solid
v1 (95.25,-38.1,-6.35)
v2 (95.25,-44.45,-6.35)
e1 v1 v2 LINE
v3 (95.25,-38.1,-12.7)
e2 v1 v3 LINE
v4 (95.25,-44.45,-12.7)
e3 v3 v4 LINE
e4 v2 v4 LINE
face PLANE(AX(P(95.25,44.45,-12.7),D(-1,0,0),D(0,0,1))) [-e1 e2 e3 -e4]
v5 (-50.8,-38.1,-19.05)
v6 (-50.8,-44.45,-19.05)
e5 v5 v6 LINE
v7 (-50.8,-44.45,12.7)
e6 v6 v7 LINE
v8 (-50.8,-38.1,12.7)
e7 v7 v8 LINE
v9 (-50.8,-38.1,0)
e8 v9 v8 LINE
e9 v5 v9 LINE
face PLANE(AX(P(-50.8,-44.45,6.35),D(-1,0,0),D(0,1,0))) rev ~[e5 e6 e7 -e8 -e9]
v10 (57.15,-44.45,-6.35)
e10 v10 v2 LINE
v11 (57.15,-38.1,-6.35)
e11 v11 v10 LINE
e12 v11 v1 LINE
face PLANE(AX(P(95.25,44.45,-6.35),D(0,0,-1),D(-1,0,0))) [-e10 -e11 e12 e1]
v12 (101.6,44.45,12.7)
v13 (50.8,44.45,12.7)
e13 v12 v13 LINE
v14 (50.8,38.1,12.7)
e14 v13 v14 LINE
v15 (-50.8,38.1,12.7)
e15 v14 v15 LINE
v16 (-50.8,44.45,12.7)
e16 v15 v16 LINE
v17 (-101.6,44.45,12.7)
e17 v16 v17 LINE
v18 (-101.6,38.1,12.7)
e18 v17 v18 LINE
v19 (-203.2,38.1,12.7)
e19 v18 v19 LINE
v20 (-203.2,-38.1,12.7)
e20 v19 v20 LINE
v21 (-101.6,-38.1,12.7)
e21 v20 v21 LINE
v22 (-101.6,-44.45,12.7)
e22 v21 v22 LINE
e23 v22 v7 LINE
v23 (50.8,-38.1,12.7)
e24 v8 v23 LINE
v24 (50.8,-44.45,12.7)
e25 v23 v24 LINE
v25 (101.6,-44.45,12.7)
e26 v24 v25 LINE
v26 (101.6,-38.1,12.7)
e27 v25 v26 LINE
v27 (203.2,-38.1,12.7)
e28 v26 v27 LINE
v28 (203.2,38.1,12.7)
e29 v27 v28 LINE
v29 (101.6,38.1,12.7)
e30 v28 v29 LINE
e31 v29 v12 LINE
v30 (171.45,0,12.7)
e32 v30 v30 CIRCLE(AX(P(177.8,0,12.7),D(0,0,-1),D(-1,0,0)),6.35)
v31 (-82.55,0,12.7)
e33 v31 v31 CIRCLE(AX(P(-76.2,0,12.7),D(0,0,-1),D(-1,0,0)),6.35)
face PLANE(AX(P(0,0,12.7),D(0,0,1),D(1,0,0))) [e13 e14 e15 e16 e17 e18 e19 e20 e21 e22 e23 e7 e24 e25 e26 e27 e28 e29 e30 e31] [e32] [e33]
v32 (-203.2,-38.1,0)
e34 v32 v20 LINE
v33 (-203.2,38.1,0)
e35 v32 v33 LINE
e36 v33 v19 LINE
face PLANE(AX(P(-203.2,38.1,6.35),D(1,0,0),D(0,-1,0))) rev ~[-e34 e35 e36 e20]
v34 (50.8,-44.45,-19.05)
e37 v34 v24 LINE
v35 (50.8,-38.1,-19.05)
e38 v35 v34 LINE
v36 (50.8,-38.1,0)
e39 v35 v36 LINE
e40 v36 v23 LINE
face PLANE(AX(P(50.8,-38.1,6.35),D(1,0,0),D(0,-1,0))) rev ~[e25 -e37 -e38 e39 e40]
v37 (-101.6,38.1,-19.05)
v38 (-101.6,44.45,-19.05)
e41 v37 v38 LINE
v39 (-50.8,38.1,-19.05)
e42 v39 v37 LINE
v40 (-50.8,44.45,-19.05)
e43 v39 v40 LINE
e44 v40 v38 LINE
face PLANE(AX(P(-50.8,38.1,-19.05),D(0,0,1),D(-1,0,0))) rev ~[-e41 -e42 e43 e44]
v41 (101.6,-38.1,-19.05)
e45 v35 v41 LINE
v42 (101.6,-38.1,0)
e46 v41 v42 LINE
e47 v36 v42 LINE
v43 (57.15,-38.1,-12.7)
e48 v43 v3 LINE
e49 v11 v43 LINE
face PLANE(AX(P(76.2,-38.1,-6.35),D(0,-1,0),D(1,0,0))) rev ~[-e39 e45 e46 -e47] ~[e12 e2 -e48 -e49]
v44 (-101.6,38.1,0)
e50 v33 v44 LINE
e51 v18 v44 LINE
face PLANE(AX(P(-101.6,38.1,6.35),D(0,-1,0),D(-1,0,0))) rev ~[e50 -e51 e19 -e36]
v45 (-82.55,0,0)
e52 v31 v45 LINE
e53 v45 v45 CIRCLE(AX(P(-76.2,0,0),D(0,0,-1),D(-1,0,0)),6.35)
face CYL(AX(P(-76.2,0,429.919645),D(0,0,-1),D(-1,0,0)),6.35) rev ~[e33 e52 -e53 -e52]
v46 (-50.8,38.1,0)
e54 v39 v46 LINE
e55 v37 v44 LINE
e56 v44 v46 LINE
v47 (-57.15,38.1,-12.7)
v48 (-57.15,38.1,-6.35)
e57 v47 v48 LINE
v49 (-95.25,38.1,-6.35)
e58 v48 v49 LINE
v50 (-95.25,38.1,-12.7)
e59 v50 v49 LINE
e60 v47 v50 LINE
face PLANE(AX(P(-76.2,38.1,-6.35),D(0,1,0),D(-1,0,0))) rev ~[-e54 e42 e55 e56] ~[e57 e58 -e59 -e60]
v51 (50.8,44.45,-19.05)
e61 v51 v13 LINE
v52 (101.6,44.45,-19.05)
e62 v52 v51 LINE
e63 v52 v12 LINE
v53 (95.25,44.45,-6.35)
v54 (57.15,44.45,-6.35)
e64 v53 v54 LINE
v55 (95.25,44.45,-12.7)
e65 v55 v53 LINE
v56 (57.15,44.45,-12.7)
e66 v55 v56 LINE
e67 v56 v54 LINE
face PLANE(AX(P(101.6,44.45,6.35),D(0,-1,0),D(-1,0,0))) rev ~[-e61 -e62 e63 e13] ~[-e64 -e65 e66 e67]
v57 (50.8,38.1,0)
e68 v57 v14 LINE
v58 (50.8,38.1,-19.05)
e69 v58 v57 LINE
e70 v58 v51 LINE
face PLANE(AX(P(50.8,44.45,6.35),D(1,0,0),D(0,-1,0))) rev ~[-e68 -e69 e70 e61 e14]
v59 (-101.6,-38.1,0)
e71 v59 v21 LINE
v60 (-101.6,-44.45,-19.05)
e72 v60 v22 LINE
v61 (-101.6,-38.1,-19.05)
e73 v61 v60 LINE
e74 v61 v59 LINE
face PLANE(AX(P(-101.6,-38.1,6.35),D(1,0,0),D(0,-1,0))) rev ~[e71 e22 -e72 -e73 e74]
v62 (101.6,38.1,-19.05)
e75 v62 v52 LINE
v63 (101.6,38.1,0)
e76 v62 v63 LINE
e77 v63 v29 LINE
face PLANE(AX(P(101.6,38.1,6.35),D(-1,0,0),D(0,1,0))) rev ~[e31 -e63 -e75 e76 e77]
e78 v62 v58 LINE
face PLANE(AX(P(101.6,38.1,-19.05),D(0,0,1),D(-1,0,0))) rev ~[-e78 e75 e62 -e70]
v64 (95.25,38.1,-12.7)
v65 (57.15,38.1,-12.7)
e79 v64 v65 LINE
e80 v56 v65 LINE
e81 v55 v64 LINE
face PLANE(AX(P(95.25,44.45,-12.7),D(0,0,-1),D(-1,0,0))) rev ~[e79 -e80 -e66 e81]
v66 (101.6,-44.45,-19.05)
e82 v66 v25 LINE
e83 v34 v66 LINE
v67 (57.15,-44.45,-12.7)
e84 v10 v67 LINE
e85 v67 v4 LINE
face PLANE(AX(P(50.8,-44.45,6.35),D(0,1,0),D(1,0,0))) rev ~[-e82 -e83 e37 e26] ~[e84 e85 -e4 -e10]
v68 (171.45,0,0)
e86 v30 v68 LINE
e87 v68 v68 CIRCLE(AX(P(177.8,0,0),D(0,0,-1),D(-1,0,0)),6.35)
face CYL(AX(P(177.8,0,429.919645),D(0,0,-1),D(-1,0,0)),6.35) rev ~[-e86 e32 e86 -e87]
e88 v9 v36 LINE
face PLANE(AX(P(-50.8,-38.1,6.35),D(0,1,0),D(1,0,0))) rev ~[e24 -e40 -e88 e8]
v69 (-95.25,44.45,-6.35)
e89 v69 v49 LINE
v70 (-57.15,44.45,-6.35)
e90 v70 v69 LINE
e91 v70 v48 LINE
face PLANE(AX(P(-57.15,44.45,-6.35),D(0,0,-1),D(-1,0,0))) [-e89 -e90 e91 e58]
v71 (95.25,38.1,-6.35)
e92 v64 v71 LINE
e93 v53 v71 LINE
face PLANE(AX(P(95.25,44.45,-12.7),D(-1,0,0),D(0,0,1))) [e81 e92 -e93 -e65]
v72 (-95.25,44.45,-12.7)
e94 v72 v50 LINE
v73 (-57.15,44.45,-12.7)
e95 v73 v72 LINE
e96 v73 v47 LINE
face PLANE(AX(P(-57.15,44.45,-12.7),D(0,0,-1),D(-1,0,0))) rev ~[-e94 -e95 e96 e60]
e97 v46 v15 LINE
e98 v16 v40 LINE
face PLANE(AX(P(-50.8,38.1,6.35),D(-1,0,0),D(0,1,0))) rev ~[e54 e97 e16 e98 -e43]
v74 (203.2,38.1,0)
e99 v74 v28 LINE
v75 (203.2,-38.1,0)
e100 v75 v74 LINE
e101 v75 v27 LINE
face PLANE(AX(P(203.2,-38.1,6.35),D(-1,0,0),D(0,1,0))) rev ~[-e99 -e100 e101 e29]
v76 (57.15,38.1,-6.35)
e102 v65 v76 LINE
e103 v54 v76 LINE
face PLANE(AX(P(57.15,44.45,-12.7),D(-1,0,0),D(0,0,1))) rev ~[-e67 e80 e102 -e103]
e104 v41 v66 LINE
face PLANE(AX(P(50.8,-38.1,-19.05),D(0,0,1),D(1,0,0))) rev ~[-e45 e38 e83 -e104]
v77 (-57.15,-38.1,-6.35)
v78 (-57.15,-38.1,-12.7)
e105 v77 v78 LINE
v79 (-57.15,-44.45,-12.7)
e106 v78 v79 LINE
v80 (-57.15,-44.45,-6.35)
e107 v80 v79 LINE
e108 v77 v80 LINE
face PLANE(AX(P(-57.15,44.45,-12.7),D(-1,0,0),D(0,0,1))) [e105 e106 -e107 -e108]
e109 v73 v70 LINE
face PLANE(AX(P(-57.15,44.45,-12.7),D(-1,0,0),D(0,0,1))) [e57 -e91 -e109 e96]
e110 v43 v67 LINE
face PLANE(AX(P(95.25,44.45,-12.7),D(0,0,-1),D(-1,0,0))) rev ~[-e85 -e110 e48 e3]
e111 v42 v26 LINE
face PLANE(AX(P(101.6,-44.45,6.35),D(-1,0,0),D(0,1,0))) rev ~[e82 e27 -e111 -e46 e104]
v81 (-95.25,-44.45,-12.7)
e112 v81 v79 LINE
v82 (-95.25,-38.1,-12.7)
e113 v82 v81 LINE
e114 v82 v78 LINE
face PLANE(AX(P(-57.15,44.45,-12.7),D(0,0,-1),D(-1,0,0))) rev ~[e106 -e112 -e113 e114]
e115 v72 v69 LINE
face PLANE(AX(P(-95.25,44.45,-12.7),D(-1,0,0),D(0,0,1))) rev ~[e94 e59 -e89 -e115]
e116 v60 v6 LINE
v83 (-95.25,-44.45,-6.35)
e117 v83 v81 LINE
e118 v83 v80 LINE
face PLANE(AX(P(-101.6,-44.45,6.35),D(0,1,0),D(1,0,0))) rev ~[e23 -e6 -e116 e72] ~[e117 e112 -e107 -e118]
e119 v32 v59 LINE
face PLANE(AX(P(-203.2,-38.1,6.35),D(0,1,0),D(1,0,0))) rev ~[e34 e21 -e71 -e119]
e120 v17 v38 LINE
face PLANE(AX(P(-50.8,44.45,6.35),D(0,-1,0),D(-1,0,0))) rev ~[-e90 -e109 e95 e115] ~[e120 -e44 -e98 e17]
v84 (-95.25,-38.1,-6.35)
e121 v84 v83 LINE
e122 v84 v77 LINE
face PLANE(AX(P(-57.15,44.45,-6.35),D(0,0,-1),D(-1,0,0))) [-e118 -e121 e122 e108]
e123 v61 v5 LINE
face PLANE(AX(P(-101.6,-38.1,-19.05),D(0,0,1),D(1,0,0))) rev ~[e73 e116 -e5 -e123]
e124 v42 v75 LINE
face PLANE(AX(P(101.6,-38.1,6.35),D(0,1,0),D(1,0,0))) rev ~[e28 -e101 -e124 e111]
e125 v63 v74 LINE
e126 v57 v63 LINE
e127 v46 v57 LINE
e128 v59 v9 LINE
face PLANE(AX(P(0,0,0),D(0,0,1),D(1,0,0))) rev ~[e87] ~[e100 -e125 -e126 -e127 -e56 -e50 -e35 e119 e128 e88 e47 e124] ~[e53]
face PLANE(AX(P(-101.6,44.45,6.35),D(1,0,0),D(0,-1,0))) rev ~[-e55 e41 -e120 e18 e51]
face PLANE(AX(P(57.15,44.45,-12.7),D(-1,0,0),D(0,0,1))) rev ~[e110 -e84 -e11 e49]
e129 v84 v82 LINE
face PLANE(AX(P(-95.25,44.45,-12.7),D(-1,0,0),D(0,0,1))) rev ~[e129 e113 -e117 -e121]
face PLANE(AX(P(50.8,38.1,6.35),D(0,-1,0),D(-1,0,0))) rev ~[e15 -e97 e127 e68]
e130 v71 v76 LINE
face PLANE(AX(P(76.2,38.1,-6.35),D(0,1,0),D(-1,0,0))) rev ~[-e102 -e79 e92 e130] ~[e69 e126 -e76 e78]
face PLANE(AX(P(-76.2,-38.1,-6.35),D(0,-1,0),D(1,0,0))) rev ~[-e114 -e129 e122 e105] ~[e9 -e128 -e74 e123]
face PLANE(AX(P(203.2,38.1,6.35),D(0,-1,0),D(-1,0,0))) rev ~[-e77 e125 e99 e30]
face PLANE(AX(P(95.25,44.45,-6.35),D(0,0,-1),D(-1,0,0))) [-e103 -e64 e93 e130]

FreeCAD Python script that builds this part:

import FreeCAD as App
import Part
import Sketcher
from FreeCAD import Vector
Q = App.Units.Quantity

doc = App.newDocument("Part")
body = doc.addObject("PartDesign::Body", "Body")

sketch1 = body.newObject("Sketcher::SketchObject", "Sketch")
sketch1.AttachmentSupport = (doc.getObject("XY_Plane"), [""])
sketch1.MapMode = "FlatFace"
sketch1.addGeometry([
    Part.LineSegment(Vector(-203, 38, 0), Vector(-203, -38, 0)),
    Part.LineSegment(Vector(-203, -38, 0), Vector(203, -38, 0)),
    Part.LineSegment(Vector(203, -38, 0), Vector(203, 38, 0)),
    Part.LineSegment(Vector(203, 38, 0), Vector(-203, 38, 0)),
], False)
sketch1.addConstraint([
    Sketcher.Constraint("Coincident", 0, 2, 1, 1),
    Sketcher.Constraint("Coincident", 1, 2, 2, 1),
    Sketcher.Constraint("Coincident", 2, 2, 3, 1),
    Sketcher.Constraint("Coincident", 3, 2, 0, 1),
    Sketcher.Constraint("Vertical", 0),
    Sketcher.Constraint("Horizontal", 1),
    Sketcher.Constraint("Vertical", 2),
    Sketcher.Constraint("Horizontal", 3),
    Sketcher.Constraint("Symmetric", 0, 2, 2, 2, -1, 1),
    Sketcher.Constraint("DistanceX", 1, 1, 1, 2, Q("16 in")),
    Sketcher.Constraint("DistanceY", 0, 2, 0, 1, Q("3 in")),
])
pad1 = body.newObject("PartDesign::Pad", "Pad")
pad1.Profile = sketch1
pad1.Length = Q("0.25 in")

sketch2 = body.newObject("Sketcher::SketchObject", "Sketch001")
sketch2.AttachmentSupport = (doc.getObject("XZ_Plane"), [""])
sketch2.MapMode = "FlatFace"
sketch2.AttachmentOffset = App.Placement(Vector(0, 0, 1.5 * 25.4), App.Rotation())
sketch2.addGeometry([
    Part.LineSegment(Vector(51, 6, 0), Vector(51, -19, 0)),
    Part.LineSegment(Vector(51, -19, 0), Vector(102, -19, 0)),
    Part.LineSegment(Vector(102, -19, 0), Vector(102, 6, 0)),
    Part.LineSegment(Vector(102, 6, 0), Vector(51, 6, 0)),
    Part.LineSegment(Vector(-102, 6, 0), Vector(-102, -19, 0)),
    Part.LineSegment(Vector(-102, -19, 0), Vector(-51, -19, 0)),
    Part.LineSegment(Vector(-51, -19, 0), Vector(-51, 6, 0)),
    Part.LineSegment(Vector(-51, 6, 0), Vector(-102, 6, 0)),
], False)
sketch2.addConstraint([
    Sketcher.Constraint("Coincident", 0, 2, 1, 1),
    Sketcher.Constraint("Coincident", 1, 2, 2, 1),
    Sketcher.Constraint("Coincident", 2, 2, 3, 1),
    Sketcher.Constraint("Coincident", 3, 2, 0, 1),
    Sketcher.Constraint("Coincident", 4, 2, 5, 1),
    Sketcher.Constraint("Coincident", 5, 2, 6, 1),
    Sketcher.Constraint("Coincident", 6, 2, 7, 1),
    Sketcher.Constraint("Coincident", 7, 2, 4, 1),
    Sketcher.Constraint("Vertical", 0),
    Sketcher.Constraint("Horizontal", 1),
    Sketcher.Constraint("Vertical", 2),
    Sketcher.Constraint("Horizontal", 3),
    Sketcher.Constraint("Vertical", 4),
    Sketcher.Constraint("Horizontal", 5),
    Sketcher.Constraint("Vertical", 6),
    Sketcher.Constraint("Horizontal", 7),
    Sketcher.Constraint("Symmetric", 1, 2, 4, 2, -2),
    Sketcher.Constraint("Symmetric", 3, 2, 6, 2, -2),
    Sketcher.Constraint("DistanceX", 1, 1, 1, 2, Q("2 in")),
    Sketcher.Constraint("DistanceY", 0, 2, 0, 1, Q("1 in")),
    Sketcher.Constraint("DistanceX", -1, 1, 0, 2, Q("2 in")),
    Sketcher.Constraint("DistanceY", 0, 2, -1, 1, Q("0.75 in")),
])
pad2 = body.newObject("PartDesign::Pad", "Pad001")
pad2.Profile = sketch2
pad2.Length = Q("0.25 in")

sketch3 = body.newObject("Sketcher::SketchObject", "Sketch002")
sketch3.AttachmentSupport = (doc.getObject("XZ_Plane"), [""])
sketch3.MapMode = "FlatFace"
sketch3.AttachmentOffset = App.Placement(Vector(0, 0, -1.5 * 25.4), App.Rotation())
sketch3.addGeometry([
    Part.LineSegment(Vector(102, 6, 0), Vector(102, -19, 0)),
    Part.LineSegment(Vector(102, -19, 0), Vector(51, -19, 0)),
    Part.LineSegment(Vector(51, -19, 0), Vector(51, 6, 0)),
    Part.LineSegment(Vector(51, 6, 0), Vector(102, 6, 0)),
    Part.LineSegment(Vector(-51, 6, 0), Vector(-51, -19, 0)),
    Part.LineSegment(Vector(-51, -19, 0), Vector(-102, -19, 0)),
    Part.LineSegment(Vector(-102, -19, 0), Vector(-102, 6, 0)),
    Part.LineSegment(Vector(-102, 6, 0), Vector(-51, 6, 0)),
], False)
sketch3.addConstraint([
    Sketcher.Constraint("Coincident", 0, 2, 1, 1),
    Sketcher.Constraint("Coincident", 1, 2, 2, 1),
    Sketcher.Constraint("Coincident", 2, 2, 3, 1),
    Sketcher.Constraint("Coincident", 3, 2, 0, 1),
    Sketcher.Constraint("Coincident", 4, 2, 5, 1),
    Sketcher.Constraint("Coincident", 5, 2, 6, 1),
    Sketcher.Constraint("Coincident", 6, 2, 7, 1),
    Sketcher.Constraint("Coincident", 7, 2, 4, 1),
    Sketcher.Constraint("Vertical", 0),
    Sketcher.Constraint("Horizontal", 1),
    Sketcher.Constraint("Vertical", 2),
    Sketcher.Constraint("Horizontal", 3),
    Sketcher.Constraint("Vertical", 4),
    Sketcher.Constraint("Horizontal", 5),
    Sketcher.Constraint("Vertical", 6),
    Sketcher.Constraint("Horizontal", 7),
    Sketcher.Constraint("Symmetric", 1, 2, 4, 2, -2),
    Sketcher.Constraint("Symmetric", 3, 2, 6, 2, -2),
    Sketcher.Constraint("DistanceX", 1, 2, 1, 1, Q("2 in")),
    Sketcher.Constraint("DistanceY", 0, 2, 0, 1, Q("1 in")),
    Sketcher.Constraint("DistanceX", -1, 1, 0, 2, Q("4 in")),
    Sketcher.Constraint("DistanceY", 0, 2, -1, 1, Q("0.75 in")),
])
pad3 = body.newObject("PartDesign::Pad", "Pad002")
pad3.Profile = sketch3
pad3.Length = Q("0.25 in")
pad3.Reversed = True

sketch4 = body.newObject("Sketcher::SketchObject", "Sketch003")
sketch4.AttachmentSupport = (doc.getObject("XZ_Plane"), [""])
sketch4.MapMode = "FlatFace"
sketch4.AttachmentOffset = App.Placement(Vector(0, 0, -1.75 * 25.4), App.Rotation())
sketch4.addGeometry([
    Part.LineSegment(Vector(-57, -6, 0), Vector(-57, -13, 0)),
    Part.LineSegment(Vector(-57, -13, 0), Vector(-95, -13, 0)),
    Part.LineSegment(Vector(-95, -13, 0), Vector(-95, -6, 0)),
    Part.LineSegment(Vector(-95, -6, 0), Vector(-57, -6, 0)),
    Part.LineSegment(Vector(95, -6, 0), Vector(95, -13, 0)),
    Part.LineSegment(Vector(95, -13, 0), Vector(57, -13, 0)),
    Part.LineSegment(Vector(57, -13, 0), Vector(57, -6, 0)),
    Part.LineSegment(Vector(57, -6, 0), Vector(95, -6, 0)),
], False)
sketch4.addConstraint([
    Sketcher.Constraint("Coincident", 0, 2, 1, 1),
    Sketcher.Constraint("Coincident", 1, 2, 2, 1),
    Sketcher.Constraint("Coincident", 2, 2, 3, 1),
    Sketcher.Constraint("Coincident", 3, 2, 0, 1),
    Sketcher.Constraint("Coincident", 4, 2, 5, 1),
    Sketcher.Constraint("Coincident", 5, 2, 6, 1),
    Sketcher.Constraint("Coincident", 6, 2, 7, 1),
    Sketcher.Constraint("Coincident", 7, 2, 4, 1),
    Sketcher.Constraint("Vertical", 0),
    Sketcher.Constraint("Horizontal", 1),
    Sketcher.Constraint("Vertical", 2),
    Sketcher.Constraint("Horizontal", 3),
    Sketcher.Constraint("Vertical", 4),
    Sketcher.Constraint("Horizontal", 5),
    Sketcher.Constraint("Vertical", 6),
    Sketcher.Constraint("Horizontal", 7),
    Sketcher.Constraint("Symmetric", 1, 2, 4, 2, -2),
    Sketcher.Constraint("Symmetric", 3, 2, 6, 2, -2),
    Sketcher.Constraint("DistanceX", 1, 2, 1, 1, Q("1.5 in")),
    Sketcher.Constraint("DistanceX", 0, 2, 4, 2, Q("6 in")),
    Sketcher.Constraint("DistanceY", 0, 2, 0, 1, Q("0.25 in")),
    Sketcher.Constraint("DistanceY", 0, 2, -1, 1, Q("0.5 in")),
])
pocket1 = body.newObject("PartDesign::Pocket", "Pocket")
pocket1.Profile = sketch4
pocket1.Type = "ThroughAll"
pocket1.Reversed = True

sketch5 = body.newObject("Sketcher::SketchObject", "Sketch004")
sketch5.AttachmentSupport = (doc.getObject("XY_Plane"), [""])
sketch5.MapMode = "FlatFace"
sketch5.AttachmentOffset = App.Placement(Vector(0, 0, 0.25 * 25.4), App.Rotation())
sketch5.addGeometry([
    Part.LineSegment(Vector(-102, 38, 0), Vector(-203, 38, 0)),
    Part.LineSegment(Vector(-203, 38, 0), Vector(-203, -38, 0)),
    Part.LineSegment(Vector(-203, -38, 0), Vector(-102, -38, 0)),
    Part.LineSegment(Vector(-102, -38, 0), Vector(-102, -44, 0)),
    Part.LineSegment(Vector(-102, -44, 0), Vector(-51, -44, 0)),
    Part.LineSegment(Vector(-51, -44, 0), Vector(-51, -38, 0)),
    Part.LineSegment(Vector(-51, -38, 0), Vector(51, -38, 0)),
    Part.LineSegment(Vector(51, -38, 0), Vector(51, -44, 0)),
    Part.LineSegment(Vector(51, -44, 0), Vector(102, -44, 0)),
    Part.LineSegment(Vector(102, -44, 0), Vector(102, -38, 0)),
    Part.LineSegment(Vector(102, -38, 0), Vector(203, -38, 0)),
    Part.LineSegment(Vector(203, -38, 0), Vector(203, 38, 0)),
    Part.LineSegment(Vector(203, 38, 0), Vector(102, 38, 0)),
    Part.LineSegment(Vector(102, 38, 0), Vector(102, 44, 0)),
    Part.LineSegment(Vector(102, 44, 0), Vector(51, 44, 0)),
    Part.LineSegment(Vector(51, 44, 0), Vector(51, 38, 0)),
    Part.LineSegment(Vector(51, 38, 0), Vector(-51, 38, 0)),
    Part.LineSegment(Vector(-51, 38, 0), Vector(-51, 44, 0)),
    Part.LineSegment(Vector(-51, 44, 0), Vector(-102, 44, 0)),
    Part.LineSegment(Vector(-102, 44, 0), Vector(-102, 38, 0)),
], False)
sketch5.addConstraint([
    Sketcher.Constraint("Coincident", 0, 2, 1, 1),
    Sketcher.Constraint("Coincident", 1, 2, 2, 1),
    Sketcher.Constraint("Coincident", 2, 2, 3, 1),
    Sketcher.Constraint("Coincident", 3, 2, 4, 1),
    Sketcher.Constraint("Coincident", 4, 2, 5, 1),
    Sketcher.Constraint("Coincident", 5, 2, 6, 1),
    Sketcher.Constraint("Coincident", 6, 2, 7, 1),
    Sketcher.Constraint("Coincident", 7, 2, 8, 1),
    Sketcher.Constraint("Coincident", 8, 2, 9, 1),
    Sketcher.Constraint("Coincident", 9, 2, 10, 1),
    Sketcher.Constraint("Coincident", 10, 2, 11, 1),
    Sketcher.Constraint("Coincident", 11, 2, 12, 1),
    Sketcher.Constraint("Coincident", 12, 2, 13, 1),
    Sketcher.Constraint("Coincident", 13, 2, 14, 1),
    Sketcher.Constraint("Coincident", 14, 2, 15, 1),
    Sketcher.Constraint("Coincident", 15, 2, 16, 1),
    Sketcher.Constraint("Coincident", 16, 2, 17, 1),
    Sketcher.Constraint("Coincident", 17, 2, 18, 1),
    Sketcher.Constraint("Coincident", 18, 2, 19, 1),
    Sketcher.Constraint("Coincident", 19, 2, 0, 1),
    Sketcher.Constraint("Horizontal", 0),
    Sketcher.Constraint("Vertical", 1),
    Sketcher.Constraint("Horizontal", 2),
    Sketcher.Constraint("Vertical", 3),
    Sketcher.Constraint("Horizontal", 4),
    Sketcher.Constraint("Vertical", 5),
    Sketcher.Constraint("Horizontal", 6),
    Sketcher.Constraint("Vertical", 7),
    Sketcher.Constraint("Horizontal", 8),
    Sketcher.Constraint("Vertical", 9),
    Sketcher.Constraint("Horizontal", 10),
    Sketcher.Constraint("Vertical", 11),
    Sketcher.Constraint("Horizontal", 12),
    Sketcher.Constraint("Vertical", 13),
    Sketcher.Constraint("Horizontal", 14),
    Sketcher.Constraint("Vertical", 15),
    Sketcher.Constraint("Horizontal", 16),
    Sketcher.Constraint("Vertical", 17),
    Sketcher.Constraint("Horizontal", 18),
    Sketcher.Constraint("Vertical", 19),
    Sketcher.Constraint("Symmetric", 0, 2, 10, 2, -1, 1),
    Sketcher.Constraint("Symmetric", 2, 2, 12, 2, -1, 1),
    Sketcher.Constraint("Symmetric", 4, 2, 14, 2, -1, 1),
    Sketcher.Constraint("Symmetric", 6, 2, 16, 2, -1, 1),
    Sketcher.Constraint("Symmetric", 8, 2, 18, 2, -1, 1),
    Sketcher.Constraint("Symmetric", 4, 2, 7, 2, -2),
    Sketcher.Constraint("Symmetric", 2, 2, 9, 2, -2),
    Sketcher.Constraint("Horizontal", 2, 2, 5, 2),
    Sketcher.Constraint("Equal", 2, 6),
    Sketcher.Constraint("DistanceX", 0, 2, 0, 1, Q("4 in")),
    Sketcher.Constraint("DistanceX", 4, 1, 4, 2, Q("2 in")),
    Sketcher.Constraint("DistanceY", 1, 2, 1, 1, Q("3 in")),
    Sketcher.Constraint("DistanceY", 3, 2, 3, 1, Q("0.25 in")),
])
pad4 = body.newObject("PartDesign::Pad", "Pad003")
pad4.Profile = sketch5
pad4.Length = Q("0.25 in")

sketch6 = body.newObject("Sketcher::SketchObject", "Sketch005")
sketch6.AttachmentSupport = (doc.getObject("XY_Plane"), [""])
sketch6.MapMode = "FlatFace"
sketch6.AttachmentOffset = App.Placement(Vector(0, 0, 0.5 * 25.4), App.Rotation())
sketch6.addGeometry([
    Part.Circle(Vector(178, 0, 0), Vector(0, 0, 1), 6),
    Part.Circle(Vector(-76, 0, 0), Vector(0, 0, 1), 6),
], False)
sketch6.addConstraint([
    Sketcher.Constraint("Equal", 0, 1),
    Sketcher.Constraint("PointOnObject", 0, 3, -1),
    Sketcher.Constraint("PointOnObject", 1, 3, -1),
    Sketcher.Constraint("Diameter", 0, Q("0.5 in")),
    Sketcher.Constraint("DistanceX", -1, 1, 0, 3, Q("7 in")),
    Sketcher.Constraint("DistanceX", 1, 3, -1, 1, Q("3 in")),
])
doc.recompute()
hole = body.newObject("PartDesign::Hole", "Hole")
hole.Profile = sketch6
hole.ThreadType = "None"
hole.Diameter = Q("0.5 in")
hole.DepthType = "ThroughAll"

doc.recompute()
